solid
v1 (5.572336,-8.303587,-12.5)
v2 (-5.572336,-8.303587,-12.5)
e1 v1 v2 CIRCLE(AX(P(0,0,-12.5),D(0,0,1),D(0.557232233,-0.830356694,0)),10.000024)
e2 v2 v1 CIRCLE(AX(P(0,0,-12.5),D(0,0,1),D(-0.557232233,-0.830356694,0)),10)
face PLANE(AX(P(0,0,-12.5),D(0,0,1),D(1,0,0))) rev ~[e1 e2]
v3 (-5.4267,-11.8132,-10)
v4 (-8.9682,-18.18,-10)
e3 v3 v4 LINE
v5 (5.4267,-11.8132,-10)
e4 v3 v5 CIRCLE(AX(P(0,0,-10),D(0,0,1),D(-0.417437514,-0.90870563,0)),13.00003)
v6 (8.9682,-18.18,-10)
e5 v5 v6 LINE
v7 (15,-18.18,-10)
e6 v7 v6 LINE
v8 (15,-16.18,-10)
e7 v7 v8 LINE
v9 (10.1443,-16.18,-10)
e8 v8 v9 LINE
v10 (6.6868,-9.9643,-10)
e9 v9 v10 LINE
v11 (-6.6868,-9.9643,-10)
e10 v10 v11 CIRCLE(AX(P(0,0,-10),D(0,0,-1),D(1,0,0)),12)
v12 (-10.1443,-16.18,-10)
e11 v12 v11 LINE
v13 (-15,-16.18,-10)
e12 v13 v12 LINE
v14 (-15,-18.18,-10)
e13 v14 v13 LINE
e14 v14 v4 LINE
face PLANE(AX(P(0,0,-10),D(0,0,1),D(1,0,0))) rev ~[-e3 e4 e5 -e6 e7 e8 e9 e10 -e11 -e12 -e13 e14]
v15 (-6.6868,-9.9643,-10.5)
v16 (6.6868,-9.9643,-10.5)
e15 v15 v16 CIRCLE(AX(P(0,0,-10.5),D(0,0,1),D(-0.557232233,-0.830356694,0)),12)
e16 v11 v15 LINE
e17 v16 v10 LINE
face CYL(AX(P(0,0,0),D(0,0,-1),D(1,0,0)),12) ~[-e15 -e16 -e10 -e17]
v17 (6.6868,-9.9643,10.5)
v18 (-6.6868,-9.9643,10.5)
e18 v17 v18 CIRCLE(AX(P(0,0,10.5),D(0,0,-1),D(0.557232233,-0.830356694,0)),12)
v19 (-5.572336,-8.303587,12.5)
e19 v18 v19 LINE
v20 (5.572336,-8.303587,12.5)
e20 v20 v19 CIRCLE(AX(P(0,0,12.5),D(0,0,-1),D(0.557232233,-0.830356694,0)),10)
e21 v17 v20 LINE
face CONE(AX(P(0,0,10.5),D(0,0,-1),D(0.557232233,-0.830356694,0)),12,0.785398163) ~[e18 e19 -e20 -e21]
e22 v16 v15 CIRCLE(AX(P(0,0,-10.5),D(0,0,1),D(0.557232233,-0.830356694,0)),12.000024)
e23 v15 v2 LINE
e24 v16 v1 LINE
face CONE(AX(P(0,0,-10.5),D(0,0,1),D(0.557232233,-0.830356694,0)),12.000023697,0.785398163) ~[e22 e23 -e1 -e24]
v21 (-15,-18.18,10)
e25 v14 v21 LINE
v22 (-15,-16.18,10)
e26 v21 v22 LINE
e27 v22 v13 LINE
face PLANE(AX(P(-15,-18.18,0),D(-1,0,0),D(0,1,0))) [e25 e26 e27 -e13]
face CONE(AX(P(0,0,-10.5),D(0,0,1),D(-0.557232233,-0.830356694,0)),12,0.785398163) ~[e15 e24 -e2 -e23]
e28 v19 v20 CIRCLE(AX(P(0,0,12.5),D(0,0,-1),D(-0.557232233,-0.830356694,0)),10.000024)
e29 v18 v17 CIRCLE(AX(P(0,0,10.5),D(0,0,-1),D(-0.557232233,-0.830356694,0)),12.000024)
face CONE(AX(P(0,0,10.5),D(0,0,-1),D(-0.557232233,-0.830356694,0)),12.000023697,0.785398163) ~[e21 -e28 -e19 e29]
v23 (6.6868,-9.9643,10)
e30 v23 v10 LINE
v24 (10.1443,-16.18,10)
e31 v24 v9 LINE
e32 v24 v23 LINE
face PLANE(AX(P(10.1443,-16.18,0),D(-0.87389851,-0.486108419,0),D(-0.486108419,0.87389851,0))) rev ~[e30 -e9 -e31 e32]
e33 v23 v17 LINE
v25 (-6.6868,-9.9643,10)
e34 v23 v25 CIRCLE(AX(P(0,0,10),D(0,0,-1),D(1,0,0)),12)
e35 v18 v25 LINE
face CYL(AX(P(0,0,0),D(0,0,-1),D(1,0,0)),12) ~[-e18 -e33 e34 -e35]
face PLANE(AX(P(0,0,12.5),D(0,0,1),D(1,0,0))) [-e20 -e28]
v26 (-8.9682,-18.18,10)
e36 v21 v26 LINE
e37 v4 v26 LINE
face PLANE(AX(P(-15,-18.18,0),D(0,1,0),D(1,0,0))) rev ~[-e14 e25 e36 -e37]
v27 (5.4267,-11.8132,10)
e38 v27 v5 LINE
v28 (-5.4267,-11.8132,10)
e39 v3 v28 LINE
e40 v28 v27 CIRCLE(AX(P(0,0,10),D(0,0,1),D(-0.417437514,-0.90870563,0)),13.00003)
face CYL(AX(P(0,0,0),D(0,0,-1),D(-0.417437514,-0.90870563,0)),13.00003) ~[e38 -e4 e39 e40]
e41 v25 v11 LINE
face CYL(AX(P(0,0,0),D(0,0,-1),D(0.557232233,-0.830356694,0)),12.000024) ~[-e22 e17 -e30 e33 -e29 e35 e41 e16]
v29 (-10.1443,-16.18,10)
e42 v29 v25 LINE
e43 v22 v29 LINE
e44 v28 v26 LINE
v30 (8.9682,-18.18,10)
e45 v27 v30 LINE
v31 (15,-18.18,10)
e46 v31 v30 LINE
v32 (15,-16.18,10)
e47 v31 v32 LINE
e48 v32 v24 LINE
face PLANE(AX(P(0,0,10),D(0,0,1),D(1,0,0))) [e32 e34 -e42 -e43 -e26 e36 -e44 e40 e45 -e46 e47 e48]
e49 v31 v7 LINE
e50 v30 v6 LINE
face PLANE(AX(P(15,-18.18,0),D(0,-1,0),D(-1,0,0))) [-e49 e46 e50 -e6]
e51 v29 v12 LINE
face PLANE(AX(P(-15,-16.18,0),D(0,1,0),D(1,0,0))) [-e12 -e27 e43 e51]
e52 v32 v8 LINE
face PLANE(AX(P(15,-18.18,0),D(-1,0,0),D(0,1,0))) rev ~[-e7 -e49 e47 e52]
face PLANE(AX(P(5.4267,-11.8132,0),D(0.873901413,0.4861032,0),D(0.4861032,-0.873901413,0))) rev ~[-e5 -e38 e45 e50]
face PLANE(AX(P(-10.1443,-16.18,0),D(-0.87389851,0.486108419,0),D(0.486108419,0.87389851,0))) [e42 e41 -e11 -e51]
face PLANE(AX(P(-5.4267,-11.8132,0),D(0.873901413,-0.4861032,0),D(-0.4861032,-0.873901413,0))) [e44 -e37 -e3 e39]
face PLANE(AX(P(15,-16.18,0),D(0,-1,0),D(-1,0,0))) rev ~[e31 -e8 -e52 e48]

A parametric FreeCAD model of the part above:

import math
import FreeCAD as App
import Part
import Sketcher
Q = App.Units.Quantity


def edges_at(feature, points):
    """Names of the edges that pass closest to the given points."""
    edges = feature.Shape.Edges
    near = lambda p: min(range(len(edges)), key=lambda i: edges[i].distToShape(Part.Vertex(*p))[0])
    return sorted({f"Edge{near(p) + 1}" for p in points})

doc = App.newDocument("Part")
params = doc.addObject("Spreadsheet::Sheet", "Params")
for row, (alias, value) in enumerate([
    ("sketch1_radius", "13 mm"),
    ("sketch1_radius2", "12 mm"),
    ("sketch1_height", "2 mm"),
    ("pad1_length", "20 mm"),
    ("sketch2_diameter", "24 mm"),
    ("pad2_length", "25 mm"),
    ("chamfer_size", "2 mm"),
], start=1):
    params.set(f"A{row}", alias)
    params.set(f"B{row}", "=" + value)
    params.setAlias(f"B{row}", alias)

body = doc.addObject("PartDesign::Body", "Body")

# Sketch on XY plane
sketch1 = body.newObject("Sketcher::SketchObject", "Sketch")
sketch1.AttachmentSupport = (doc.getObject("XY_Plane"), [""])
sketch1.MapMode = "FlatFace"
sketch1.addGeometry(Part.LineSegment(App.Vector(-15, -16.18, 0), App.Vector(-15, -18.18, 0)), False)
sketch1.addGeometry(Part.LineSegment(App.Vector(-15, -18.18, 0), App.Vector(-8.9682, -18.18, 0)), False)
sketch1.addGeometry(Part.LineSegment(App.Vector(-8.9682, -18.18, 0), App.Vector(-5.4267, -11.8132, 0)), False)
sketch1.addGeometry(Part.ArcOfCircle(Part.Circle(App.Vector(0, 0, 0), App.Vector(0, 0, 1), 13.00003), math.radians(-114.672912), math.radians(-65.327088)), False)
sketch1.addGeometry(Part.LineSegment(App.Vector(5.4267, -11.8132, 0), App.Vector(8.9682, -18.18, 0)), False)
sketch1.addGeometry(Part.LineSegment(App.Vector(8.9682, -18.18, 0), App.Vector(15, -18.18, 0)), False)
sketch1.addGeometry(Part.LineSegment(App.Vector(15, -18.18, 0), App.Vector(15, -16.18, 0)), False)
sketch1.addGeometry(Part.LineSegment(App.Vector(15, -16.18, 0), App.Vector(10.1443, -16.18, 0)), False)
sketch1.addGeometry(Part.LineSegment(App.Vector(10.1443, -16.18, 0), App.Vector(6.6868, -9.9643, 0)), False)
sketch1.addGeometry(Part.ArcOfCircle(Part.Circle(App.Vector(0, 0, 0), App.Vector(0, 0, 1), 12.000024), math.radians(-56.135397), math.radians(236.135397)), False)
sketch1.addGeometry(Part.LineSegment(App.Vector(-6.6868, -9.9643, 0), App.Vector(-10.1443, -16.18, 0)), False)
sketch1.addGeometry(Part.LineSegment(App.Vector(-10.1443, -16.18, 0), App.Vector(-15, -16.18, 0)), False)
sketch1.addConstraint(Sketcher.Constraint("Coincident", 0, 2, 1, 1))
sketch1.addConstraint(Sketcher.Constraint("Coincident", 1, 2, 2, 1))
sketch1.addConstraint(Sketcher.Constraint("Coincident", 2, 2, 3, 1))
sketch1.addConstraint(Sketcher.Constraint("Coincident", 3, 2, 4, 1))
sketch1.addConstraint(Sketcher.Constraint("Coincident", 4, 2, 5, 1))
sketch1.addConstraint(Sketcher.Constraint("Coincident", 5, 2, 6, 1))
sketch1.addConstraint(Sketcher.Constraint("Coincident", 6, 2, 7, 1))
sketch1.addConstraint(Sketcher.Constraint("Coincident", 7, 2, 8, 1))
sketch1.addConstraint(Sketcher.Constraint("Coincident", 8, 2, 9, 1))
sketch1.addConstraint(Sketcher.Constraint("Coincident", 9, 2, 10, 1))
sketch1.addConstraint(Sketcher.Constraint("Coincident", 10, 2, 11, 1))
sketch1.addConstraint(Sketcher.Constraint("Coincident", 11, 2, 0, 1))
sketch1.addConstraint(Sketcher.Constraint("Vertical", 0))
sketch1.addConstraint(Sketcher.Constraint("Horizontal", 1))
sketch1.addConstraint(Sketcher.Constraint("Horizontal", 5))
sketch1.addConstraint(Sketcher.Constraint("Vertical", 6))
sketch1.addConstraint(Sketcher.Constraint("Horizontal", 7))
sketch1.addConstraint(Sketcher.Constraint("Horizontal", 11))
sketch1.addConstraint(Sketcher.Constraint("Coincident", 3, 3, -1, 1))
sketch1.addConstraint(Sketcher.Constraint("Coincident", 9, 3, -1, 1))
sketch1.addConstraint(Sketcher.Constraint("Symmetric", 1, 2, 4, 2, -2))
sketch1.addConstraint(Sketcher.Constraint("Symmetric", 7, 2, 10, 2, -2))
sketch1.addConstraint(Sketcher.Constraint("Parallel", 4, 8))
sketch1.addConstraint(Sketcher.Constraint("Parallel", 2, 10))
sketch1.addConstraint(Sketcher.Constraint("Horizontal", 2, 2, 3, 2))
sketch1.addConstraint(Sketcher.Constraint("Equal", 1, 5))
sketch1.addConstraint(Sketcher.Constraint("Radius", 3, Q("13 mm")))
sketch1.addConstraint(Sketcher.Constraint("Radius", 9, Q("12 mm")))
sketch1.addConstraint(Sketcher.Constraint("DistanceY", 0, 2, 0, 1, Q("2 mm")))
sketch1.addConstraint(Sketcher.Constraint("DistanceX", 0, 2, -1, 1, Q("15 mm")))
sketch1.addConstraint(Sketcher.Constraint("DistanceY", 0, 2, -1, 1, Q("18.18 mm")))
sketch1.addConstraint(Sketcher.Constraint("DistanceX", 3, 2, 8, 2, Q("1.26 mm")))
sketch1.addConstraint(Sketcher.Constraint("DistanceX", 1, 1, 1, 2, Q("6.0318 mm")))
sketch1.addConstraint(Sketcher.Constraint("DistanceX", 7, 2, 7, 1, Q("4.8557 mm")))
sketch1.setExpression("Constraints[26]", "Params.sketch1_radius")
sketch1.setExpression("Constraints[27]", "Params.sketch1_radius2")
sketch1.setExpression("Constraints[28]", "Params.sketch1_height")
pad1 = body.newObject("PartDesign::Pad", "Pad")
pad1.Profile = sketch1
pad1.setExpression("Length", "Params.pad1_length")
pad1.Midplane = True

# Sketch on XY plane
sketch2 = body.newObject("Sketcher::SketchObject", "Sketch001")
sketch2.AttachmentSupport = (doc.getObject("XY_Plane"), [""])
sketch2.MapMode = "FlatFace"
sketch2.addGeometry(Part.Circle(App.Vector(0, 0, 0), App.Vector(0, 0, 1), 12.000024), False)
sketch2.addConstraint(Sketcher.Constraint("Coincident", 0, 3, -1, 1))
sketch2.addConstraint(Sketcher.Constraint("Diameter", 0, Q("24 mm")))
sketch2.setExpression("Constraints[1]", "Params.sketch2_diameter")
pad2 = body.newObject("PartDesign::Pad", "Pad001")
pad2.Profile = sketch2
pad2.setExpression("Length", "Params.pad2_length")
pad2.Midplane = True
doc.recompute()

chamfer = body.newObject("PartDesign::Chamfer", "Chamfer")
chamfer.Base = (pad2, edges_at(pad2, [(-12, 0, 12.5), (-12, 0, -12.5)]))
chamfer.setExpression("Size", "Params.chamfer_size")

doc.recompute()
